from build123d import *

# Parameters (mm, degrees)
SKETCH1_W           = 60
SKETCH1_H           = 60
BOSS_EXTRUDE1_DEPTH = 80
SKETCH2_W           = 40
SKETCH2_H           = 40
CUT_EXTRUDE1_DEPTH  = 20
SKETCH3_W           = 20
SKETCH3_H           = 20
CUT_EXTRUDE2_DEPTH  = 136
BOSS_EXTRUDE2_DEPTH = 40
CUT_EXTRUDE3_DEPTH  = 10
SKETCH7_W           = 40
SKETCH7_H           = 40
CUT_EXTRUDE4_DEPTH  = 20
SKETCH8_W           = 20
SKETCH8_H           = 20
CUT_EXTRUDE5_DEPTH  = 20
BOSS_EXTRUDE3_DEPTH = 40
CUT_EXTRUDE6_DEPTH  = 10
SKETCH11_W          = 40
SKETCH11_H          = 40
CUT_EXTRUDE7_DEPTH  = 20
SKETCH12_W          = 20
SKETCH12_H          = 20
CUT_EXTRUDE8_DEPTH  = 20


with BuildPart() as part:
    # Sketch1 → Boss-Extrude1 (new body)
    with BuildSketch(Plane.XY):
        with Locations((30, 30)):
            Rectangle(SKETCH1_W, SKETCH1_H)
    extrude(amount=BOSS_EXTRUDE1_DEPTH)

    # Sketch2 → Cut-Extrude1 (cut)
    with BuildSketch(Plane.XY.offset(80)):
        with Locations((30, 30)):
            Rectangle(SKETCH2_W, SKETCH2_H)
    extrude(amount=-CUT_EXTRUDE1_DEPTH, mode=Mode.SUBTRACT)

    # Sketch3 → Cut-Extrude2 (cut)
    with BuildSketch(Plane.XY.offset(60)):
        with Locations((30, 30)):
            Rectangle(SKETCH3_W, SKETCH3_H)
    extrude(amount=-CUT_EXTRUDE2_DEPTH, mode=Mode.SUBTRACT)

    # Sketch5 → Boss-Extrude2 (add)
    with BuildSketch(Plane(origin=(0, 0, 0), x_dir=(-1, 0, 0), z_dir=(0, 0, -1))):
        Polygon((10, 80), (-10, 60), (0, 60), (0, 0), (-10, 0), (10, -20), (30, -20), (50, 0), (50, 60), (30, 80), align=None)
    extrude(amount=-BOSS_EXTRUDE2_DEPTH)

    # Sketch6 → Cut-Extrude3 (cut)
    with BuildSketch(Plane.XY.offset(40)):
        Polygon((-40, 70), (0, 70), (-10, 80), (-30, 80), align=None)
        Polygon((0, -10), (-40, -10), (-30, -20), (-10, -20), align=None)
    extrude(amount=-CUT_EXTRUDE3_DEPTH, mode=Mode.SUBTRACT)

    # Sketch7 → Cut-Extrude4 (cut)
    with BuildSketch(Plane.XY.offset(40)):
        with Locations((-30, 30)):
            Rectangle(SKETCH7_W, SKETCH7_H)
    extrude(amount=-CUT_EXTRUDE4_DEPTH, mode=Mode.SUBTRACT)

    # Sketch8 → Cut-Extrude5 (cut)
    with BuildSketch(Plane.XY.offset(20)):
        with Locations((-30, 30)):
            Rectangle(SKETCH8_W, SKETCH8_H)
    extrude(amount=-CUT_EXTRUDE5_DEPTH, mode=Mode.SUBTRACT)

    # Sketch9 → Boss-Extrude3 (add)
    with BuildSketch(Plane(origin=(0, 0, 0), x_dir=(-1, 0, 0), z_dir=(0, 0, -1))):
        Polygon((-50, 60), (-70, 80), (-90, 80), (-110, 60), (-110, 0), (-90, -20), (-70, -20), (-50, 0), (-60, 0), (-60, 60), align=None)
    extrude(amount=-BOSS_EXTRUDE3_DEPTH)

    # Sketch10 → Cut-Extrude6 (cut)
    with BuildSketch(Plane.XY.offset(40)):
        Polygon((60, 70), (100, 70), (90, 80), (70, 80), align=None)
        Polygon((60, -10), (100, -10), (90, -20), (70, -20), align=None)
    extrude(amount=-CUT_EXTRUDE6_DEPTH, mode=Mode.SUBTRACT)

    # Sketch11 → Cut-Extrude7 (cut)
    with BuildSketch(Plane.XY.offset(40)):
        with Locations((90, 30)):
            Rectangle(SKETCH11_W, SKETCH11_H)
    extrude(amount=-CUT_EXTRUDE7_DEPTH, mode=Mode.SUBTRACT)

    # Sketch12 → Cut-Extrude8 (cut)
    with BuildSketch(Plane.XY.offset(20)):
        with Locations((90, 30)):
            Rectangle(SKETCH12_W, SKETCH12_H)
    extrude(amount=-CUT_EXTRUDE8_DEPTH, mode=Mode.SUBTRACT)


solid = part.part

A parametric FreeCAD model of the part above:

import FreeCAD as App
import Part
import Sketcher

V = App.Vector
Q = App.Units.Quantity


def add_polygon(sketch, points):
    """Adds a closed chain of lines whose ends are joined by coincident constraints."""
    first, n = sketch.GeometryCount, len(points)
    for a, b in zip(points, points[1:] + points[:1]):
        sketch.addGeometry(Part.LineSegment(App.Vector(*a, 0), App.Vector(*b, 0)), False)
    for i in range(n):
        sketch.addConstraint(Sketcher.Constraint("Coincident", first + i, 2, first + (i + 1) % n, 1))

doc = App.newDocument("Part")
body = doc.addObject("PartDesign::Body", "Body")

sketch1 = doc.addObject("Sketcher::SketchObject", "Sketch")
body.addObject(sketch1)
sketch1.AttachmentSupport = (doc.XY_Plane, [""])
sketch1.MapMode = "FlatFace"
add_polygon(sketch1, [(0, 60), (0, 0), (60, 0), (60, 60)])
sketch1.addConstraint([
    Sketcher.Constraint("Vertical", 0),
    Sketcher.Constraint("Horizontal", 1),
    Sketcher.Constraint("Vertical", 2),
    Sketcher.Constraint("Horizontal", 3),
    Sketcher.Constraint("Coincident", 0, 2, -1, 1),
    Sketcher.Constraint("Equal", 3, 0),
    Sketcher.Constraint("DistanceX", 1, 1, 1, 2, Q("60 mm")),
])
pad1 = doc.addObject("PartDesign::Pad", "Pad")
body.addObject(pad1)
pad1.Profile = sketch1
pad1.Length = 80

sketch2 = doc.addObject("Sketcher::SketchObject", "Sketch001")
body.addObject(sketch2)
sketch2.AttachmentSupport = (doc.XY_Plane, [""])
sketch2.MapMode = "FlatFace"
sketch2.AttachmentOffset = App.Placement(V(0, 0, 80), App.Rotation())
add_polygon(sketch2, [(10, 50), (10, 10), (50, 10), (50, 50)])
sketch2.addConstraint([
    Sketcher.Constraint("Vertical", 0),
    Sketcher.Constraint("Horizontal", 1),
    Sketcher.Constraint("Vertical", 2),
    Sketcher.Constraint("Horizontal", 3),
    Sketcher.Constraint("Equal", 3, 0),
    Sketcher.Constraint("DistanceX", 1, 1, 1, 2, Q("40 mm")),
    Sketcher.Constraint("DistanceX", -1, 1, 0, 2, Q("10 mm")),
    Sketcher.Constraint("DistanceY", -1, 1, 0, 2, Q("10 mm")),
])
pocket1 = doc.addObject("PartDesign::Pocket", "Pocket")
body.addObject(pocket1)
pocket1.Profile = sketch2
pocket1.Length = 20

sketch3 = doc.addObject("Sketcher::SketchObject", "Sketch002")
body.addObject(sketch3)
sketch3.AttachmentSupport = (doc.XY_Plane, [""])
sketch3.MapMode = "FlatFace"
sketch3.AttachmentOffset = App.Placement(V(0, 0, 60), App.Rotation())
add_polygon(sketch3, [(20, 40), (20, 20), (40, 20), (40, 40)])
sketch3.addConstraint([
    Sketcher.Constraint("Vertical", 0),
    Sketcher.Constraint("Horizontal", 1),
    Sketcher.Constraint("Vertical", 2),
    Sketcher.Constraint("Horizontal", 3),
    Sketcher.Constraint("Equal", 3, 0),
    Sketcher.Constraint("DistanceX", 1, 1, 1, 2, Q("20 mm")),
    Sketcher.Constraint("DistanceX", -1, 1, 0, 2, Q("20 mm")),
    Sketcher.Constraint("DistanceY", -1, 1, 0, 2, Q("20 mm")),
])
pocket2 = doc.addObject("PartDesign::Pocket", "Pocket001")
body.addObject(pocket2)
pocket2.Profile = sketch3
pocket2.Length = 136

sketch4 = doc.addObject("Sketcher::SketchObject", "Sketch003")
body.addObject(sketch4)
sketch4.AttachmentSupport = (doc.XY_Plane, [""])
sketch4.MapMode = "FlatFace"
add_polygon(sketch4, [(-10, 80), (10, 60), (0, 60), (0, 0), (10, 0), (-10, -20), (-30, -20), (-50, 0), (-50, 60), (-30, 80)])
sketch4.addConstraint([
    Sketcher.Constraint("Horizontal", 1),
    Sketcher.Constraint("Vertical", 2),
    Sketcher.Constraint("Horizontal", 3),
    Sketcher.Constraint("Horizontal", 5),
    Sketcher.Constraint("Vertical", 7),
    Sketcher.Constraint("Horizontal", 9),
    Sketcher.Constraint("Coincident", 2, 2, -1, 1),
    Sketcher.Constraint("PointOnObject", 6, 2, -1),
    Sketcher.Constraint("Perpendicular", 0, 4),
    Sketcher.Constraint("Perpendicular", 4, 6),
    Sketcher.Constraint("Perpendicular", 6, 8),
    Sketcher.Constraint("Horizontal", 1, 2, 7, 2),
    Sketcher.Constraint("Vertical", 0, 2, 3, 2),
    Sketcher.Constraint("Vertical", 5, 2, 8, 2),
    Sketcher.Constraint("Vertical", 4, 2, 9, 2),
    Sketcher.Constraint("DistanceX", 1, 2, 1, 1, Q("10 mm")),
    Sketcher.Constraint("DistanceX", 5, 2, 5, 1, Q("20 mm")),
    Sketcher.Constraint("DistanceY", 2, 2, 2, 1, Q("60 mm")),
    Sketcher.Constraint("DistanceX", 4, 2, -1, 1, Q("10 mm")),
])
pad2 = doc.addObject("PartDesign::Pad", "Pad001")
body.addObject(pad2)
pad2.Profile = sketch4
pad2.Length = 40

sketch5 = doc.addObject("Sketcher::SketchObject", "Sketch004")
body.addObject(sketch5)
sketch5.AttachmentSupport = (doc.XY_Plane, [""])
sketch5.MapMode = "FlatFace"
sketch5.AttachmentOffset = App.Placement(V(0, 0, 40), App.Rotation())
add_polygon(sketch5, [(-40, 70), (0, 70), (-10, 80), (-30, 80)])
add_polygon(sketch5, [(0, -10), (-40, -10), (-30, -20), (-10, -20)])
sketch5.addConstraint([
    Sketcher.Constraint("Horizontal", 0),
    Sketcher.Constraint("Horizontal", 2),
    Sketcher.Constraint("Horizontal", 4),
    Sketcher.Constraint("Horizontal", 6),
    Sketcher.Constraint("PointOnObject", 0, 2, -2),
    Sketcher.Constraint("PointOnObject", 7, 2, -2),
    Sketcher.Constraint("Perpendicular", 1, 3),
    Sketcher.Constraint("Perpendicular", 3, 5),
    Sketcher.Constraint("Perpendicular", 5, 7),
    Sketcher.Constraint("Vertical", 3, 2, 4, 2),
    Sketcher.Constraint("Vertical", 2, 2, 5, 2),
    Sketcher.Constraint("Vertical", 1, 2, 6, 2),
    Sketcher.Constraint("DistanceX", 0, 1, 0, 2, Q("40 mm")),
    Sketcher.Constraint("DistanceX", 2, 2, 2, 1, Q("20 mm")),
    Sketcher.Constraint("DistanceY", -1, 1, 0, 2, Q("70 mm")),
    Sketcher.Constraint("DistanceY", 4, 2, -1, 1, Q("10 mm")),
])
pocket3 = doc.addObject("PartDesign::Pocket", "Pocket002")
body.addObject(pocket3)
pocket3.Profile = sketch5
pocket3.Length = 10

sketch6 = doc.addObject("Sketcher::SketchObject", "Sketch005")
body.addObject(sketch6)
sketch6.AttachmentSupport = (doc.XY_Plane, [""])
sketch6.MapMode = "FlatFace"
sketch6.AttachmentOffset = App.Placement(V(0, 0, 40), App.Rotation())
add_polygon(sketch6, [(-50, 50), (-50, 10), (-10, 10), (-10, 50)])
sketch6.addConstraint([
    Sketcher.Constraint("Vertical", 0),
    Sketcher.Constraint("Horizontal", 1),
    Sketcher.Constraint("Vertical", 2),
    Sketcher.Constraint("Horizontal", 3),
    Sketcher.Constraint("Equal", 3, 0),
    Sketcher.Constraint("DistanceX", 1, 1, 1, 2, Q("40 mm")),
    Sketcher.Constraint("DistanceX", 0, 2, -1, 1, Q("50 mm")),
    Sketcher.Constraint("DistanceY", -1, 1, 0, 2, Q("10 mm")),
])
pocket4 = doc.addObject("PartDesign::Pocket", "Pocket003")
body.addObject(pocket4)
pocket4.Profile = sketch6
pocket4.Length = 20

sketch7 = doc.addObject("Sketcher::SketchObject", "Sketch006")
body.addObject(sketch7)
sketch7.AttachmentSupport = (doc.XY_Plane, [""])
sketch7.MapMode = "FlatFace"
sketch7.AttachmentOffset = App.Placement(V(0, 0, 20), App.Rotation())
add_polygon(sketch7, [(-40, 40), (-40, 20), (-20, 20), (-20, 40)])
sketch7.addConstraint([
    Sketcher.Constraint("Vertical", 0),
    Sketcher.Constraint("Horizontal", 1),
    Sketcher.Constraint("Vertical", 2),
    Sketcher.Constraint("Horizontal", 3),
    Sketcher.Constraint("Equal", 3, 0),
    Sketcher.Constraint("DistanceX", 1, 1, 1, 2, Q("20 mm")),
    Sketcher.Constraint("DistanceX", 0, 2, -1, 1, Q("40 mm")),
    Sketcher.Constraint("DistanceY", -1, 1, 0, 2, Q("20 mm")),
])
pocket5 = doc.addObject("PartDesign::Pocket", "Pocket004")
body.addObject(pocket5)
pocket5.Profile = sketch7
pocket5.Length = 20

sketch8 = doc.addObject("Sketcher::SketchObject", "Sketch007")
body.addObject(sketch8)
sketch8.AttachmentSupport = (doc.XY_Plane, [""])
sketch8.MapMode = "FlatFace"
add_polygon(sketch8, [(50, 60), (70, 80), (90, 80), (110, 60), (110, 0), (90, -20), (70, -20), (50, 0), (60, 0), (60, 60)])
sketch8.addConstraint([
    Sketcher.Constraint("Horizontal", 1),
    Sketcher.Constraint("Vertical", 3),
    Sketcher.Constraint("Horizontal", 5),
    Sketcher.Constraint("Horizontal", 7),
    Sketcher.Constraint("Vertical", 8),
    Sketcher.Constraint("Horizontal", 9),
    Sketcher.Constraint("PointOnObject", 3, 2, -1),
    Sketcher.Constraint("PointOnObject", 6, 2, -1),
    Sketcher.Constraint("Perpendicular", 0, 2),
    Sketcher.Constraint("Perpendicular", 2, 4),
    Sketcher.Constraint("Perpendicular", 4, 6),
    Sketcher.Constraint("Horizontal", 2, 2, 8, 2),
    Sketcher.Constraint("Vertical", 1, 2, 4, 2),
    Sketcher.Constraint("Vertical", 0, 2, 5, 2),
    Sketcher.Constraint("Vertical", 6, 2, 9, 2),
    Sketcher.Constraint("DistanceX", 1, 1, 1, 2, Q("20 mm")),
    Sketcher.Constraint("DistanceX", 7, 1, 7, 2, Q("10 mm")),
    Sketcher.Constraint("DistanceY", 3, 2, 3, 1, Q("60 mm")),
    Sketcher.Constraint("DistanceX", -1, 1, 0, 2, Q("70 mm")),
    Sketcher.Constraint("DistanceY", -1, 1, 0, 2, Q("80 mm")),
])
pad3 = doc.addObject("PartDesign::Pad", "Pad002")
body.addObject(pad3)
pad3.Profile = sketch8
pad3.Length = 40

sketch9 = doc.addObject("Sketcher::SketchObject", "Sketch008")
body.addObject(sketch9)
sketch9.AttachmentSupport = (doc.XY_Plane, [""])
sketch9.MapMode = "FlatFace"
sketch9.AttachmentOffset = App.Placement(V(0, 0, 40), App.Rotation())
add_polygon(sketch9, [(60, 70), (100, 70), (90, 80), (70, 80)])
add_polygon(sketch9, [(100, -10), (60, -10), (70, -20), (90, -20)])
sketch9.addConstraint([
    Sketcher.Constraint("Horizontal", 0),
    Sketcher.Constraint("Horizontal", 2),
    Sketcher.Constraint("Horizontal", 4),
    Sketcher.Constraint("Horizontal", 6),
    Sketcher.Constraint("Perpendicular", 1, 3),
    Sketcher.Constraint("Perpendicular", 3, 5),
    Sketcher.Constraint("Perpendicular", 5, 7),
    Sketcher.Constraint("Vertical", 3, 2, 4, 2),
    Sketcher.Constraint("Vertical", 2, 2, 5, 2),
    Sketcher.Constraint("Vertical", 1, 2, 6, 2),
    Sketcher.Constraint("Vertical", 0, 2, 7, 2),
    Sketcher.Constraint("DistanceX", 0, 1, 0, 2, Q("40 mm")),
    Sketcher.Constraint("DistanceX", 2, 2, 2, 1, Q("20 mm")),
    Sketcher.Constraint("DistanceX", -1, 1, 0, 2, Q("100 mm")),
    Sketcher.Constraint("DistanceY", -1, 1, 0, 2, Q("70 mm")),
    Sketcher.Constraint("DistanceY", 4, 2, -1, 1, Q("10 mm")),
])
pocket6 = doc.addObject("PartDesign::Pocket", "Pocket005")
body.addObject(pocket6)
pocket6.Profile = sketch9
pocket6.Length = 10

sketch10 = doc.addObject("Sketcher::SketchObject", "Sketch009")
body.addObject(sketch10)
sketch10.AttachmentSupport = (doc.XY_Plane, [""])
sketch10.MapMode = "FlatFace"
sketch10.AttachmentOffset = App.Placement(V(0, 0, 40), App.Rotation())
add_polygon(sketch10, [(70, 50), (70, 10), (110, 10), (110, 50)])
sketch10.addConstraint([
    Sketcher.Constraint("Vertical", 0),
    Sketcher.Constraint("Horizontal", 1),
    Sketcher.Constraint("Vertical", 2),
    Sketcher.Constraint("Horizontal", 3),
    Sketcher.Constraint("Equal", 3, 0),
    Sketcher.Constraint("DistanceX", 1, 1, 1, 2, Q("40 mm")),
    Sketcher.Constraint("DistanceX", -1, 1, 0, 2, Q("70 mm")),
    Sketcher.Constraint("DistanceY", -1, 1, 0, 2, Q("10 mm")),
])
pocket7 = doc.addObject("PartDesign::Pocket", "Pocket006")
body.addObject(pocket7)
pocket7.Profile = sketch10
pocket7.Length = 20

sketch11 = doc.addObject("Sketcher::SketchObject", "Sketch010")
body.addObject(sketch11)
sketch11.AttachmentSupport = (doc.XY_Plane, [""])
sketch11.MapMode = "FlatFace"
sketch11.AttachmentOffset = App.Placement(V(0, 0, 20), App.Rotation())
add_polygon(sketch11, [(80, 40), (80, 20), (100, 20), (100, 40)])
sketch11.addConstraint([
    Sketcher.Constraint("Vertical", 0),
    Sketcher.Constraint("Horizontal", 1),
    Sketcher.Constraint("Vertical", 2),
    Sketcher.Constraint("Horizontal", 3),
    Sketcher.Constraint("Equal", 3, 0),
    Sketcher.Constraint("DistanceX", 1, 1, 1, 2, Q("20 mm")),
    Sketcher.Constraint("DistanceX", -1, 1, 0, 2, Q("80 mm")),
    Sketcher.Constraint("DistanceY", -1, 1, 0, 2, Q("20 mm")),
])
pocket8 = doc.addObject("PartDesign::Pocket", "Pocket007")
body.addObject(pocket8)
pocket8.Profile = sketch11
pocket8.Length = 20

doc.recompute()
